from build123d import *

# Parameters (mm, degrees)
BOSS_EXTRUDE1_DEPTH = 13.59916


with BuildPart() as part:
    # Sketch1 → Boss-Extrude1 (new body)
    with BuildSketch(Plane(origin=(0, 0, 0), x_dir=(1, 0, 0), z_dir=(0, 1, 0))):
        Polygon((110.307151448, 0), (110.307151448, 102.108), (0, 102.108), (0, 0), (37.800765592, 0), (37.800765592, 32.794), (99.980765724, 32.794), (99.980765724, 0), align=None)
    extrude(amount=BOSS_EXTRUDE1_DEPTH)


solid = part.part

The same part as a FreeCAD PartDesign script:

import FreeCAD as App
import Part
import Sketcher
Q = App.Units.Quantity


def add_polygon(sketch, points):
    """Adds a closed chain of lines whose ends are joined by coincident constraints."""
    first, n = sketch.GeometryCount, len(points)
    for a, b in zip(points, points[1:] + points[:1]):
        sketch.addGeometry(Part.LineSegment(App.Vector(*a, 0), App.Vector(*b, 0)), False)
    for i in range(n):
        sketch.addConstraint(Sketcher.Constraint("Coincident", first + i, 2, first + (i + 1) % n, 1))

doc = App.newDocument("Part")
body = doc.addObject("PartDesign::Body", "Body")

# Sketch on XZ plane
sketch1 = body.newObject("Sketcher::SketchObject", "Sketch")
sketch1.AttachmentSupport = (doc.getObject("XZ_Plane"), [""])
sketch1.MapMode = "FlatFace"
add_polygon(sketch1, [(110, 0), (110, -102), (0, -102), (0, 0), (38, 0), (38, -33), (100, -33), (100, 0)])  # lines 0-7
sketch1.addConstraint([
    Sketcher.Constraint("Vertical", 0),
    Sketcher.Constraint("Horizontal", 1),
    Sketcher.Constraint("Vertical", 2),
    Sketcher.Constraint("Horizontal", 3),
    Sketcher.Constraint("Vertical", 4),
    Sketcher.Constraint("Horizontal", 5),
    Sketcher.Constraint("Vertical", 6),
    Sketcher.Constraint("Horizontal", 7),
    Sketcher.Constraint("Coincident", 2, 2, -1, 1),
    Sketcher.Constraint("PointOnObject", 6, 2, -1),
    Sketcher.Constraint("DistanceY", 0, 2, 0, 1, Q("4.02 in")),
    Sketcher.Constraint("DistanceX", 5, 1, 5, 2, 62.18),
    Sketcher.Constraint("DistanceY", 4, 2, 4, 1, 32.794),
    Sketcher.Constraint("DistanceX", 1, 2, 1, 1, 110.307151),
    Sketcher.Constraint("DistanceX", 3, 1, 3, 2, 37.800766),
])
pad1 = body.newObject("PartDesign::Pad", "Pad")
pad1.Profile = sketch1
pad1.Length = Q("0.5354 in")
pad1.Reversed = True

doc.recompute()
